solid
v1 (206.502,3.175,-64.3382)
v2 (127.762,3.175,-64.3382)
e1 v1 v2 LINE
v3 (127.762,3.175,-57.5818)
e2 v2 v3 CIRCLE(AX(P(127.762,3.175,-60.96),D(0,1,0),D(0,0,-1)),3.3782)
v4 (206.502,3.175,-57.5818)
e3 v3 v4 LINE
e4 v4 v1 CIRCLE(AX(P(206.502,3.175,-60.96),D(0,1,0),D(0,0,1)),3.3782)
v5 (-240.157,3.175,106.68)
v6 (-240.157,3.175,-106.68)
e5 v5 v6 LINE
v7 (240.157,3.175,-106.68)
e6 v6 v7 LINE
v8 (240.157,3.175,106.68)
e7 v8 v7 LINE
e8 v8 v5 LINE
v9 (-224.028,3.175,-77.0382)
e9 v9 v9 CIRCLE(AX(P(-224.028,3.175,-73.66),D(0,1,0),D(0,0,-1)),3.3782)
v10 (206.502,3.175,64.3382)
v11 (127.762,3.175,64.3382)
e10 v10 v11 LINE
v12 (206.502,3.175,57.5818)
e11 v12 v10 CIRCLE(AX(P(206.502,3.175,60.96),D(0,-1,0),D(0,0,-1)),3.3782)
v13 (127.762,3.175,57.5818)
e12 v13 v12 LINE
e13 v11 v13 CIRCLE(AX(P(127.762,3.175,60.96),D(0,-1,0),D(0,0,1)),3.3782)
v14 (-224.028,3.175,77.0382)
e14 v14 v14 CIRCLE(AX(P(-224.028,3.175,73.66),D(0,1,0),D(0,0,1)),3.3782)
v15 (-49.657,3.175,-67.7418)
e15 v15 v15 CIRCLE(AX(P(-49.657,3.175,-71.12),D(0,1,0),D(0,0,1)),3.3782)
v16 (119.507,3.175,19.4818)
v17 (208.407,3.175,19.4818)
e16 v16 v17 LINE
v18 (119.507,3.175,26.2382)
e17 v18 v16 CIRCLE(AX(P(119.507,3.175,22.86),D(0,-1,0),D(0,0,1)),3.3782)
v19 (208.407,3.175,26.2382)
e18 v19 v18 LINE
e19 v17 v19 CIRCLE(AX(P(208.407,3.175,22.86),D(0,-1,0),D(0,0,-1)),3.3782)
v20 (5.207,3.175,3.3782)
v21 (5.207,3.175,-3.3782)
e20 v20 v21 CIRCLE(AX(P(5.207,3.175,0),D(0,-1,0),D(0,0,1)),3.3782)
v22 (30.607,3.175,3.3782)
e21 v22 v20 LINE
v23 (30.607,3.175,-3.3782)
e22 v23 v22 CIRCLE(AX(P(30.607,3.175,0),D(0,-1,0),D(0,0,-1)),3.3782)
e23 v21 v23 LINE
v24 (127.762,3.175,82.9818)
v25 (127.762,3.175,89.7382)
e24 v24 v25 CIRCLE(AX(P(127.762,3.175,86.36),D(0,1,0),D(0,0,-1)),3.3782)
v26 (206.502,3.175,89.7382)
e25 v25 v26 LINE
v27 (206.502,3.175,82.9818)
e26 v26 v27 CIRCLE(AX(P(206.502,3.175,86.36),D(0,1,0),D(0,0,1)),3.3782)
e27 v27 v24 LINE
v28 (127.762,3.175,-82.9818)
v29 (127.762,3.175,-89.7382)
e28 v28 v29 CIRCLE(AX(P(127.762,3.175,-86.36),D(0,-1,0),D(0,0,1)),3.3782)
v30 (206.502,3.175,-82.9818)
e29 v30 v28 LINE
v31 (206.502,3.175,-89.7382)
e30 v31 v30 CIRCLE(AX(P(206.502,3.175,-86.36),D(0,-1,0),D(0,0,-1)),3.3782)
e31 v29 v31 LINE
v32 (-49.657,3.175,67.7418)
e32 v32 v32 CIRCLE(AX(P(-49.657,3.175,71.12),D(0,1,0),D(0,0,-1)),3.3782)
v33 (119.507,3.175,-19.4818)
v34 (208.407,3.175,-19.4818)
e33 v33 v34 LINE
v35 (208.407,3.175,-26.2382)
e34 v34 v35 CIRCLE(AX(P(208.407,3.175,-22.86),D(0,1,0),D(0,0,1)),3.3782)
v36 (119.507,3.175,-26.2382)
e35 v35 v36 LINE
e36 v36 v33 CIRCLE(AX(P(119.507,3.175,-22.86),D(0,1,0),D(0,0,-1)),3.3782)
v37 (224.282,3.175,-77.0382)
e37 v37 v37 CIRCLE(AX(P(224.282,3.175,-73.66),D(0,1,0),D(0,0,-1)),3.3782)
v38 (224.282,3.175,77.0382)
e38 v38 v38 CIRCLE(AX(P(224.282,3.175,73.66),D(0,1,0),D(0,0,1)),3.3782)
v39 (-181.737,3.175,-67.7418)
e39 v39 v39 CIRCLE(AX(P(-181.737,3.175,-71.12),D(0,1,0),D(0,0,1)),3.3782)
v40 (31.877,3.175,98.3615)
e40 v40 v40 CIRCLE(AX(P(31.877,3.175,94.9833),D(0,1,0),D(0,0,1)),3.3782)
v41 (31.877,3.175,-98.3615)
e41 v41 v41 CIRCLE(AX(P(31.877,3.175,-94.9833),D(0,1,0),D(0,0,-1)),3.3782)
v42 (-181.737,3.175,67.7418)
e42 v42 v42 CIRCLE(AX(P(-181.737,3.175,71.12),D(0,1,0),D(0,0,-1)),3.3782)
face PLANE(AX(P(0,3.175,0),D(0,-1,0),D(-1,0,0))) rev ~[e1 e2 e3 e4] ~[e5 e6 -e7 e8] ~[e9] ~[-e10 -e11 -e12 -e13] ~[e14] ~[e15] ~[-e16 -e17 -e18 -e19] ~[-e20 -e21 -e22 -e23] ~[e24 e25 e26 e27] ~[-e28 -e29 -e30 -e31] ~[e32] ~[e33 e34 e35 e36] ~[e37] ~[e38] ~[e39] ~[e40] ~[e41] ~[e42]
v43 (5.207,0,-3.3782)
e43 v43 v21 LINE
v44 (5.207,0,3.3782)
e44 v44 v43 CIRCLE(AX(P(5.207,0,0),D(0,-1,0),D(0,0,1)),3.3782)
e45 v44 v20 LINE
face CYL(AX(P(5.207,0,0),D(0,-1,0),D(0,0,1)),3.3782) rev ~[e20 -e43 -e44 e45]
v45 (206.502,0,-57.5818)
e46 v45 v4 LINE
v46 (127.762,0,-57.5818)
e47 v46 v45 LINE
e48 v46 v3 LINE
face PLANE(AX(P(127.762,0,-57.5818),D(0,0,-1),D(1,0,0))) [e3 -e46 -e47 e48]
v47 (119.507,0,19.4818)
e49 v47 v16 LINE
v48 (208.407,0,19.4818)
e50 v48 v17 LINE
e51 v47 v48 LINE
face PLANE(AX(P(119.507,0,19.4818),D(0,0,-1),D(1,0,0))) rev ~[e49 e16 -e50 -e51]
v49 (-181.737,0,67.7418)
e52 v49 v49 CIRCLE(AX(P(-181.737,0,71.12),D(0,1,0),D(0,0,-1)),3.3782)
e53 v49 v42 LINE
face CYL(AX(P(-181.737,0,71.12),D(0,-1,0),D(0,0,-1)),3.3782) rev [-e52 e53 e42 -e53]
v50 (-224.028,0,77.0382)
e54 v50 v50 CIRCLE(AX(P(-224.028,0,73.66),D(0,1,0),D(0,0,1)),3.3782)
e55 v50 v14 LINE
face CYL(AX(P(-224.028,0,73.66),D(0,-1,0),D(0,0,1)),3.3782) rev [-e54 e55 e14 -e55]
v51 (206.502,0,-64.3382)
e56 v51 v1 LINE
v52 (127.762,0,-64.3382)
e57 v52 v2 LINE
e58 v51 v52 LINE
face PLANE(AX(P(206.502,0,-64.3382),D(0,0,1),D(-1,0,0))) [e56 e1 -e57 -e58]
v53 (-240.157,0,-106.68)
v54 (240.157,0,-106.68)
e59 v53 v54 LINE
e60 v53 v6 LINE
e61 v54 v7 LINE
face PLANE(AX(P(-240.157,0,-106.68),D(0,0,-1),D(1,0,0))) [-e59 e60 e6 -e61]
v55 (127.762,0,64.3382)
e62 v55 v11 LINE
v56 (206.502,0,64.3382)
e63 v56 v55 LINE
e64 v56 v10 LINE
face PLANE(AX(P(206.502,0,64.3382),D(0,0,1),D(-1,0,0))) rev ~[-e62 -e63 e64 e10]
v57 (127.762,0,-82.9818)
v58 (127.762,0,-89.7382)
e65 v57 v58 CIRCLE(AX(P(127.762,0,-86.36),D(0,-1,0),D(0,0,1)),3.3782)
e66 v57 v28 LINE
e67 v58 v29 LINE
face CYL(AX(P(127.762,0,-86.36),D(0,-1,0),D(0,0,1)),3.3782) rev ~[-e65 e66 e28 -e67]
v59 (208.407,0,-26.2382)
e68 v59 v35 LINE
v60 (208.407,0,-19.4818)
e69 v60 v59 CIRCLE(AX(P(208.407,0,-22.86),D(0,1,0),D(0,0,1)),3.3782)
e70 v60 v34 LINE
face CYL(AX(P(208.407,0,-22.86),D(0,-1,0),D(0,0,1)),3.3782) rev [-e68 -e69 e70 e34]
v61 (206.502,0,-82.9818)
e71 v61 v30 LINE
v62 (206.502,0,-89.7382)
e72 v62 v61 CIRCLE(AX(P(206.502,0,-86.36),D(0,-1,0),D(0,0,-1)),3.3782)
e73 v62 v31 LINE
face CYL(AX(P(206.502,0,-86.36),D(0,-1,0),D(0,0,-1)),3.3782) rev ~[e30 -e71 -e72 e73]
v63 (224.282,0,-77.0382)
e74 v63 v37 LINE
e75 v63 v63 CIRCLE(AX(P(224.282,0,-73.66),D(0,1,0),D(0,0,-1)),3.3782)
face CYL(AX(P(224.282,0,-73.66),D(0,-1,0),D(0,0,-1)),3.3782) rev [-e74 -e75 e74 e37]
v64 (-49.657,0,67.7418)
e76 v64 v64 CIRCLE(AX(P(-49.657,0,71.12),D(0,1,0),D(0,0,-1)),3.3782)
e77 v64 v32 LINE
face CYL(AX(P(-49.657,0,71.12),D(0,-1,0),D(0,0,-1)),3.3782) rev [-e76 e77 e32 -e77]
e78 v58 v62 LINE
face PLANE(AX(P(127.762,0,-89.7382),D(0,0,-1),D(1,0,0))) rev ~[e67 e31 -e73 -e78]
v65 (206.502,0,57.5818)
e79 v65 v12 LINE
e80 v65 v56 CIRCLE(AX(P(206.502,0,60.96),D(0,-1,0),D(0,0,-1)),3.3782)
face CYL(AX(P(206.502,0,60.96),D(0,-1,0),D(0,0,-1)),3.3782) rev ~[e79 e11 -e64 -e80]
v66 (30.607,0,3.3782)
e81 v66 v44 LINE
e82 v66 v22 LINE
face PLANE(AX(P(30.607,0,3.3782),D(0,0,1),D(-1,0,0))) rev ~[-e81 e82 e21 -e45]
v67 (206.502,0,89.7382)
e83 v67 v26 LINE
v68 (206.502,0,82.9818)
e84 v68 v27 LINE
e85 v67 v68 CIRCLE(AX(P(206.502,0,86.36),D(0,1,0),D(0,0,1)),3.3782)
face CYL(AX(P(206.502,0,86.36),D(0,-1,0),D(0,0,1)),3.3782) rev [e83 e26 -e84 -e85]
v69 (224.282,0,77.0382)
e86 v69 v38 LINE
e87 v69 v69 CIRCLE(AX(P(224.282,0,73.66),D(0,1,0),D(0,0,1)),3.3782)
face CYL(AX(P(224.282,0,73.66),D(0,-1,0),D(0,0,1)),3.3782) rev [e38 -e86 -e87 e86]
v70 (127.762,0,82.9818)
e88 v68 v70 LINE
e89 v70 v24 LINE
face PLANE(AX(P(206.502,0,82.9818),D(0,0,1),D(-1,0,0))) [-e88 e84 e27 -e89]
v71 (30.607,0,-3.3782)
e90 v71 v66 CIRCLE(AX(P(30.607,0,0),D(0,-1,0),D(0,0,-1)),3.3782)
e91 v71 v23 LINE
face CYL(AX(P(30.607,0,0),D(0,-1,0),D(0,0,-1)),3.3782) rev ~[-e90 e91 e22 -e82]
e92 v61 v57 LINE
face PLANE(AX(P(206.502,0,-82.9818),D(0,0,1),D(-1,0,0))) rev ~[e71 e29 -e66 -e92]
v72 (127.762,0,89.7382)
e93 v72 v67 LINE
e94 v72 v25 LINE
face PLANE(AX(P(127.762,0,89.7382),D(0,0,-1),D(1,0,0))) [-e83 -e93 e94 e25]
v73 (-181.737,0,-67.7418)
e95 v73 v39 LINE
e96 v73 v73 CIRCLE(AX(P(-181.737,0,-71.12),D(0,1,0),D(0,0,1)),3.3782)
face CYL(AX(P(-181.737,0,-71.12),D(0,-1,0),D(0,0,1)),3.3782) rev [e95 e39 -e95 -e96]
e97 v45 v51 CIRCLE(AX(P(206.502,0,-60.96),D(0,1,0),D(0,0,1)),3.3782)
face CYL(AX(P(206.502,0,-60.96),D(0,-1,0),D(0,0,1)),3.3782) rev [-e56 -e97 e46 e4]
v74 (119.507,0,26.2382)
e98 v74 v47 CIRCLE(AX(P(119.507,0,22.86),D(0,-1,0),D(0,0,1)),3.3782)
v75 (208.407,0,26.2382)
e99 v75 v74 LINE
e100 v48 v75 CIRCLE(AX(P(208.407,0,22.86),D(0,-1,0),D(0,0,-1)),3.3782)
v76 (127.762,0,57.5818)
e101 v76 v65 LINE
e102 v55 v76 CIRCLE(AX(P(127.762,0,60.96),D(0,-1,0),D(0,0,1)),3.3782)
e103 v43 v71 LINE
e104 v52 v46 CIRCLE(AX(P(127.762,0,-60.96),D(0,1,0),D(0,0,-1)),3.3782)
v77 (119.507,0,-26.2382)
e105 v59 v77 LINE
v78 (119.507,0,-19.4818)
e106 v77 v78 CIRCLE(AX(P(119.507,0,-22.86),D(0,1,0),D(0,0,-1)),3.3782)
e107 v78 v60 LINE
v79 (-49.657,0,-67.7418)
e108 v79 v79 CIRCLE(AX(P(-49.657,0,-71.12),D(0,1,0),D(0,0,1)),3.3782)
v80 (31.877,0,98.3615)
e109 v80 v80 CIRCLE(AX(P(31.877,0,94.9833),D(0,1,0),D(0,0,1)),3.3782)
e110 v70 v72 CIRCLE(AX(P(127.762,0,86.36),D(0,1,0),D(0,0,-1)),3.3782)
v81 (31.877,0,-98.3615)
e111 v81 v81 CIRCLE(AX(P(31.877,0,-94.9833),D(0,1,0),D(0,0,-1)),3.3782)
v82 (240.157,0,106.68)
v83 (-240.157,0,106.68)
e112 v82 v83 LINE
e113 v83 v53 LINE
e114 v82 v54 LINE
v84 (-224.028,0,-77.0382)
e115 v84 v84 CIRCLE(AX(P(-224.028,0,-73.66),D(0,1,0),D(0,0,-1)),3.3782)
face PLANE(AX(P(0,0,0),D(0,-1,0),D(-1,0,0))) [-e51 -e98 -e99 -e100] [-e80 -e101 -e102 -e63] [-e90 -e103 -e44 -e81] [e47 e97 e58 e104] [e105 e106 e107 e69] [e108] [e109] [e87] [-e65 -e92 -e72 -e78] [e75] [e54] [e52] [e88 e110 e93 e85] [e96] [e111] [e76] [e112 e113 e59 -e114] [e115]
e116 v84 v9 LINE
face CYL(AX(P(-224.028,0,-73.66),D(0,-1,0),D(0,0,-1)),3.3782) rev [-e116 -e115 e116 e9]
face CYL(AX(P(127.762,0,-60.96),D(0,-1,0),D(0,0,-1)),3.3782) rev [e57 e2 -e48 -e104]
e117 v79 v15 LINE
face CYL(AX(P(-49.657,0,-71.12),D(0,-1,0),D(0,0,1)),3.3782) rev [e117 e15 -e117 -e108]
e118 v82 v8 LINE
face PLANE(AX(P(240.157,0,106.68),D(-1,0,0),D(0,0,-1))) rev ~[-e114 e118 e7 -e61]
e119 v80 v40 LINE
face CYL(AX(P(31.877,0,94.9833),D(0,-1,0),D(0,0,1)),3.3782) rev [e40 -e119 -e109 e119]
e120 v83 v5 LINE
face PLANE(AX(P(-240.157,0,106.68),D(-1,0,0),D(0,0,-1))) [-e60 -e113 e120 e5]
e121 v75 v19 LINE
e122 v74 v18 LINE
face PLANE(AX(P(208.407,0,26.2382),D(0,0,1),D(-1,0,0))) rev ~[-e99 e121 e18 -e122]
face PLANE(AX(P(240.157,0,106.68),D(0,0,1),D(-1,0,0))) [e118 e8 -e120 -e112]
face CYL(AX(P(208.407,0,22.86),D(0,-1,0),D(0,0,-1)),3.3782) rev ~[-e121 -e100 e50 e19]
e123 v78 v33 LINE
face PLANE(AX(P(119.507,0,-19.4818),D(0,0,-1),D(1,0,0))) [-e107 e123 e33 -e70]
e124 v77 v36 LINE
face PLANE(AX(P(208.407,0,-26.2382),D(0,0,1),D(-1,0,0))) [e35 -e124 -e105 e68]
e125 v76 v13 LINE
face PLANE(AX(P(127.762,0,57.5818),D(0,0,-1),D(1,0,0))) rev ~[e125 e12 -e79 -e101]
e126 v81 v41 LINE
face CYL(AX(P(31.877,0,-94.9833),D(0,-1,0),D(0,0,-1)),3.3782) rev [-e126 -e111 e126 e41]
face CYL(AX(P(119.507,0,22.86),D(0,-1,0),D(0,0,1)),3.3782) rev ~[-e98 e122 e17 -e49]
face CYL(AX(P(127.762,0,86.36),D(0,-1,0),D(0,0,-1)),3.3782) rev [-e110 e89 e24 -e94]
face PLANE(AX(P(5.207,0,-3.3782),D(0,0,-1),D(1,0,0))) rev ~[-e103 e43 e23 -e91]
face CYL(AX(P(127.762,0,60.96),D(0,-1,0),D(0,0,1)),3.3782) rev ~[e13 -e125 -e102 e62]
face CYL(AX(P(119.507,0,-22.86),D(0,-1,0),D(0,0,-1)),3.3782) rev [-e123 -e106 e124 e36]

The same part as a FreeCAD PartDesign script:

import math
import FreeCAD as App
import Part
import Sketcher
from FreeCAD import Vector
Q = App.Units.Quantity


def add_polygon(sketch, points):
    """Adds a closed chain of lines whose ends are joined by coincident constraints."""
    first, n = sketch.GeometryCount, len(points)
    for a, b in zip(points, points[1:] + points[:1]):
        sketch.addGeometry(Part.LineSegment(App.Vector(*a, 0), App.Vector(*b, 0)), False)
    for i in range(n):
        sketch.addConstraint(Sketcher.Constraint("Coincident", first + i, 2, first + (i + 1) % n, 1))

doc = App.newDocument("Part")
body = doc.addObject("PartDesign::Body", "Body")

sketch1 = body.newObject("Sketcher::SketchObject", "Sketch")
sketch1.AttachmentSupport = (doc.getObject("XZ_Plane"), [""])
sketch1.MapMode = "FlatFace"
add_polygon(sketch1, [(240.2, -106.7), (-240.2, -106.7), (-240.2, 106.7), (240.2, 106.7)])
sketch1.addGeometry(Part.ArcOfCircle(Part.Circle(Vector(127.8, 86.4, 0), Vector(0, 0, 1), 3.4), math.radians(90), math.radians(270)), False)
sketch1.addGeometry(Part.LineSegment(Vector(127.8, 83, 0), Vector(206.5, 83, 0)), False)
sketch1.addGeometry(Part.ArcOfCircle(Part.Circle(Vector(206.5, 86.4, 0), Vector(0, 0, 1), 3.4), math.radians(-90), math.radians(90)), False)
sketch1.addGeometry(Part.LineSegment(Vector(206.5, 89.7, 0), Vector(127.8, 89.7, 0)), False)
sketch1.addGeometry(Part.Circle(Vector(224.3, 73.7, 0), Vector(0, 0, 1), 3.4), False)
sketch1.addGeometry(Part.LineSegment(Vector(127.8, 57.6, 0), Vector(206.5, 57.6, 0)), False)
sketch1.addGeometry(Part.ArcOfCircle(Part.Circle(Vector(206.5, 61, 0), Vector(0, 0, 1), 3.4), math.radians(-90), math.radians(90)), False)
sketch1.addGeometry(Part.LineSegment(Vector(206.5, 64.3, 0), Vector(127.8, 64.3, 0)), False)
sketch1.addGeometry(Part.ArcOfCircle(Part.Circle(Vector(127.8, 61, 0), Vector(0, 0, 1), 3.4), math.radians(90), math.radians(270)), False)
sketch1.addGeometry(Part.Circle(Vector(31.9, 95, 0), Vector(0, 0, 1), 3.4), False)
sketch1.addGeometry(Part.LineSegment(Vector(119.5, 19.5, 0), Vector(208.4, 19.5, 0)), False)
sketch1.addGeometry(Part.ArcOfCircle(Part.Circle(Vector(208.4, 22.9, 0), Vector(0, 0, 1), 3.4), math.radians(-90), math.radians(90)), False)
sketch1.addGeometry(Part.LineSegment(Vector(208.4, 26.2, 0), Vector(119.5, 26.2, 0)), False)
sketch1.addGeometry(Part.ArcOfCircle(Part.Circle(Vector(119.5, 22.9, 0), Vector(0, 0, 1), 3.4), math.radians(90), math.radians(270)), False)
sketch1.addGeometry(Part.LineSegment(Vector(5.2, -3.4, 0), Vector(30.6, -3.4, 0)), False)
sketch1.addGeometry(Part.ArcOfCircle(Part.Circle(Vector(30.6, 0, 0), Vector(0, 0, 1), 3.4), math.radians(-90), math.radians(90)), False)
sketch1.addGeometry(Part.LineSegment(Vector(30.6, 3.4, 0), Vector(5.2, 3.4, 0)), False)
sketch1.addGeometry(Part.ArcOfCircle(Part.Circle(Vector(5.2, 0, 0), Vector(0, 0, 1), 3.4), math.radians(90), math.radians(270)), False)
sketch1.addGeometry(Part.Circle(Vector(-49.7, 71.1, 0), Vector(0, 0, 1), 3.4), False)
sketch1.addGeometry(Part.Circle(Vector(-181.7, 71.1, 0), Vector(0, 0, 1), 3.4), False)
sketch1.addGeometry(Part.Circle(Vector(-224, 73.7, 0), Vector(0, 0, 1), 3.4), False)
sketch1.addGeometry(Part.ArcOfCircle(Part.Circle(Vector(119.5, -22.9, 0), Vector(0, 0, 1), 3.4), math.radians(90), math.radians(270)), False)
sketch1.addGeometry(Part.LineSegment(Vector(119.5, -26.2, 0), Vector(208.4, -26.2, 0)), False)
sketch1.addGeometry(Part.ArcOfCircle(Part.Circle(Vector(208.4, -22.9, 0), Vector(0, 0, 1), 3.4), math.radians(-90), math.radians(90)), False)
sketch1.addGeometry(Part.LineSegment(Vector(208.4, -19.5, 0), Vector(119.5, -19.5, 0)), False)
sketch1.addGeometry(Part.Circle(Vector(224.3, -73.7, 0), Vector(0, 0, 1), 3.4), False)
sketch1.addGeometry(Part.ArcOfCircle(Part.Circle(Vector(127.8, -61, 0), Vector(0, 0, 1), 3.4), math.radians(90), math.radians(270)), False)
sketch1.addGeometry(Part.LineSegment(Vector(127.8, -64.3, 0), Vector(206.5, -64.3, 0)), False)
sketch1.addGeometry(Part.ArcOfCircle(Part.Circle(Vector(206.5, -61, 0), Vector(0, 0, 1), 3.4), math.radians(-90), math.radians(90)), False)
sketch1.addGeometry(Part.LineSegment(Vector(206.5, -57.6, 0), Vector(127.8, -57.6, 0)), False)
sketch1.addGeometry(Part.LineSegment(Vector(127.8, -89.7, 0), Vector(206.5, -89.7, 0)), False)
sketch1.addGeometry(Part.ArcOfCircle(Part.Circle(Vector(206.5, -86.4, 0), Vector(0, 0, 1), 3.4), math.radians(-90), math.radians(90)), False)
sketch1.addGeometry(Part.LineSegment(Vector(206.5, -83, 0), Vector(127.8, -83, 0)), False)
sketch1.addGeometry(Part.ArcOfCircle(Part.Circle(Vector(127.8, -86.4, 0), Vector(0, 0, 1), 3.4), math.radians(90), math.radians(270)), False)
sketch1.addGeometry(Part.Circle(Vector(31.9, -95, 0), Vector(0, 0, 1), 3.4), False)
sketch1.addGeometry(Part.Circle(Vector(-49.7, -71.1, 0), Vector(0, 0, 1), 3.4), False)
sketch1.addGeometry(Part.Circle(Vector(-181.7, -71.1, 0), Vector(0, 0, 1), 3.4), False)
sketch1.addGeometry(Part.Circle(Vector(-224, -73.7, 0), Vector(0, 0, 1), 3.4), False)
sketch1.addConstraint(Sketcher.Constraint("Tangent", 4, 2, 5, 1))
sketch1.addConstraint(Sketcher.Constraint("Tangent", 5, 2, 6, 1))
sketch1.addConstraint(Sketcher.Constraint("Tangent", 6, 2, 7, 1))
sketch1.addConstraint(Sketcher.Constraint("Tangent", 7, 2, 4, 1))
sketch1.addConstraint(Sketcher.Constraint("Tangent", 9, 2, 10, 1))
sketch1.addConstraint(Sketcher.Constraint("Tangent", 10, 2, 11, 1))
sketch1.addConstraint(Sketcher.Constraint("Tangent", 11, 2, 12, 1))
sketch1.addConstraint(Sketcher.Constraint("Tangent", 12, 2, 9, 1))
sketch1.addConstraint(Sketcher.Constraint("Tangent", 14, 2, 15, 1))
sketch1.addConstraint(Sketcher.Constraint("Tangent", 15, 2, 16, 1))
sketch1.addConstraint(Sketcher.Constraint("Tangent", 16, 2, 17, 1))
sketch1.addConstraint(Sketcher.Constraint("Tangent", 17, 2, 14, 1))
sketch1.addConstraint(Sketcher.Constraint("Tangent", 18, 2, 19, 1))
sketch1.addConstraint(Sketcher.Constraint("Tangent", 19, 2, 20, 1))
sketch1.addConstraint(Sketcher.Constraint("Tangent", 20, 2, 21, 1))
sketch1.addConstraint(Sketcher.Constraint("Tangent", 21, 2, 18, 1))
sketch1.addConstraint(Sketcher.Constraint("Tangent", 25, 2, 26, 1))
sketch1.addConstraint(Sketcher.Constraint("Tangent", 26, 2, 27, 1))
sketch1.addConstraint(Sketcher.Constraint("Tangent", 27, 2, 28, 1))
sketch1.addConstraint(Sketcher.Constraint("Tangent", 28, 2, 25, 1))
sketch1.addConstraint(Sketcher.Constraint("Tangent", 30, 2, 31, 1))
sketch1.addConstraint(Sketcher.Constraint("Tangent", 31, 2, 32, 1))
sketch1.addConstraint(Sketcher.Constraint("Tangent", 32, 2, 33, 1))
sketch1.addConstraint(Sketcher.Constraint("Tangent", 33, 2, 30, 1))
sketch1.addConstraint(Sketcher.Constraint("Tangent", 34, 2, 35, 1))
sketch1.addConstraint(Sketcher.Constraint("Tangent", 35, 2, 36, 1))
sketch1.addConstraint(Sketcher.Constraint("Tangent", 36, 2, 37, 1))
sketch1.addConstraint(Sketcher.Constraint("Tangent", 37, 2, 34, 1))
sketch1.addConstraint(Sketcher.Constraint("Horizontal", 0))
sketch1.addConstraint(Sketcher.Constraint("Vertical", 1))
sketch1.addConstraint(Sketcher.Constraint("Horizontal", 2))
sketch1.addConstraint(Sketcher.Constraint("Vertical", 3))
sketch1.addConstraint(Sketcher.Constraint("Horizontal", 5))
sketch1.addConstraint(Sketcher.Constraint("Horizontal", 7))
sketch1.addConstraint(Sketcher.Constraint("Horizontal", 9))
sketch1.addConstraint(Sketcher.Constraint("Horizontal", 11))
sketch1.addConstraint(Sketcher.Constraint("Horizontal", 14))
sketch1.addConstraint(Sketcher.Constraint("Horizontal", 16))
sketch1.addConstraint(Sketcher.Constraint("Horizontal", 18))
sketch1.addConstraint(Sketcher.Constraint("Horizontal", 20))
sketch1.addConstraint(Sketcher.Constraint("Horizontal", 26))
sketch1.addConstraint(Sketcher.Constraint("Horizontal", 28))
sketch1.addConstraint(Sketcher.Constraint("Horizontal", 31))
sketch1.addConstraint(Sketcher.Constraint("Horizontal", 33))
sketch1.addConstraint(Sketcher.Constraint("Horizontal", 34))
sketch1.addConstraint(Sketcher.Constraint("Horizontal", 36))
sketch1.addConstraint(Sketcher.Constraint("Equal", 6, 8))
sketch1.addConstraint(Sketcher.Constraint("Equal", 8, 10))
sketch1.addConstraint(Sketcher.Constraint("Equal", 12, 13))
sketch1.addConstraint(Sketcher.Constraint("Equal", 13, 15))
sketch1.addConstraint(Sketcher.Constraint("Equal", 17, 19))
sketch1.addConstraint(Sketcher.Constraint("Equal", 21, 22))
sketch1.addConstraint(Sketcher.Constraint("Equal", 22, 23))
sketch1.addConstraint(Sketcher.Constraint("Equal", 23, 24))
sketch1.addConstraint(Sketcher.Constraint("Equal", 24, 25))
sketch1.addConstraint(Sketcher.Constraint("Equal", 27, 29))
sketch1.addConstraint(Sketcher.Constraint("Equal", 29, 30))
sketch1.addConstraint(Sketcher.Constraint("Equal", 32, 35))
sketch1.addConstraint(Sketcher.Constraint("Equal", 37, 38))
sketch1.addConstraint(Sketcher.Constraint("Equal", 38, 39))
sketch1.addConstraint(Sketcher.Constraint("Equal", 39, 40))
sketch1.addConstraint(Sketcher.Constraint("Equal", 40, 41))
sketch1.addConstraint(Sketcher.Constraint("Symmetric", 0, 2, 2, 2, -1, 1))
sketch1.addConstraint(Sketcher.Constraint("Symmetric", 17, 3, 25, 3, -1))
sketch1.addConstraint(Sketcher.Constraint("Symmetric", 8, 3, 29, 3, -1))
sketch1.addConstraint(Sketcher.Constraint("Symmetric", 12, 3, 30, 3, -1))
sketch1.addConstraint(Sketcher.Constraint("Symmetric", 6, 3, 35, 3, -1))
sketch1.addConstraint(Sketcher.Constraint("Symmetric", 13, 3, 38, 3, -1))
sketch1.addConstraint(Sketcher.Constraint("Symmetric", 22, 3, 39, 3, -1))
sketch1.addConstraint(Sketcher.Constraint("Symmetric", 23, 3, 40, 3, -1))
sketch1.addConstraint(Sketcher.Constraint("Symmetric", 24, 3, 41, 3, -1))
sketch1.addConstraint(Sketcher.Constraint("PointOnObject", 19, 3, -1))
sketch1.addConstraint(Sketcher.Constraint("Horizontal", 22, 3, 23, 3))
sketch1.addConstraint(Sketcher.Constraint("Horizontal", 8, 3, 24, 3))
sketch1.addConstraint(Sketcher.Constraint("Vertical", 6, 3, 10, 3))
sketch1.addConstraint(Sketcher.Constraint("Vertical", 4, 3, 12, 3))
sketch1.addConstraint(Sketcher.Constraint("Vertical", 15, 3, 27, 3))
sketch1.addConstraint(Sketcher.Constraint("Vertical", 10, 3, 32, 3))
sketch1.addConstraint(Sketcher.Constraint("Vertical", 30, 3, 37, 3))
sketch1.addConstraint(Sketcher.Constraint("DistanceX", 18, 1, 18, 2, Q("1 in")))
sketch1.addConstraint(Sketcher.Constraint("Diameter", 8, Q("0.266 in")))
sketch1.addConstraint(Sketcher.Constraint("DistanceX", 5, 1, 5, 2, Q("3.1 in")))
sketch1.addConstraint(Sketcher.Constraint("DistanceX", 14, 1, 14, 2, Q("3.5 in")))
sketch1.addConstraint(Sketcher.Constraint("DistanceY", 1, 1, 1, 2, Q("8.4 in")))
sketch1.addConstraint(Sketcher.Constraint("DistanceY", 10, 3, 6, 3, Q("1 in")))
sketch1.addConstraint(Sketcher.Constraint("DistanceY", 15, 3, 8, 3, Q("2 in")))
sketch1.addConstraint(Sketcher.Constraint("DistanceX", 19, 3, 15, 3, Q("7 in")))
sketch1.addConstraint(Sketcher.Constraint("DistanceY", 0, 2, 23, 3, Q("7 in")))
sketch1.addConstraint(Sketcher.Constraint("DistanceX", 0, 2, 0, 1, Q("18.91 in")))
sketch1.addConstraint(Sketcher.Constraint("DistanceY", -1, 1, 4, 3, Q("3.4 in")))
sketch1.addConstraint(Sketcher.Constraint("DistanceY", -1, 1, 8, 3, Q("2.9 in")))
sketch1.addConstraint(Sketcher.Constraint("DistanceX", 6, 3, 8, 3, Q("0.7 in")))
sketch1.addConstraint(Sketcher.Constraint("DistanceX", 23, 3, 22, 3, Q("5.2 in")))
sketch1.addConstraint(Sketcher.Constraint("DistanceX", 0, 2, 40, 3, Q("2.3 in")))
sketch1.addConstraint(Sketcher.Constraint("DistanceX", -1, 1, 4, 3, Q("5.03 in")))
sketch1.addConstraint(Sketcher.Constraint("DistanceX", 24, 3, -1, 1, Q("8.82 in")))
sketch1.addConstraint(Sketcher.Constraint("DistanceX", 19, 3, 13, 3, Q("0.05 in")))
sketch1.addConstraint(Sketcher.Constraint("DistanceX", 22, 3, 13, 3, Q("3.21 in")))
sketch1.addConstraint(Sketcher.Constraint("DistanceY", -1, 1, 13, 3, Q("3.7395 in")))
pad1 = body.newObject("PartDesign::Pad", "Pad")
pad1.Profile = sketch1
pad1.Length = Q("0.125 in")
pad1.Reversed = True

doc.recompute()
